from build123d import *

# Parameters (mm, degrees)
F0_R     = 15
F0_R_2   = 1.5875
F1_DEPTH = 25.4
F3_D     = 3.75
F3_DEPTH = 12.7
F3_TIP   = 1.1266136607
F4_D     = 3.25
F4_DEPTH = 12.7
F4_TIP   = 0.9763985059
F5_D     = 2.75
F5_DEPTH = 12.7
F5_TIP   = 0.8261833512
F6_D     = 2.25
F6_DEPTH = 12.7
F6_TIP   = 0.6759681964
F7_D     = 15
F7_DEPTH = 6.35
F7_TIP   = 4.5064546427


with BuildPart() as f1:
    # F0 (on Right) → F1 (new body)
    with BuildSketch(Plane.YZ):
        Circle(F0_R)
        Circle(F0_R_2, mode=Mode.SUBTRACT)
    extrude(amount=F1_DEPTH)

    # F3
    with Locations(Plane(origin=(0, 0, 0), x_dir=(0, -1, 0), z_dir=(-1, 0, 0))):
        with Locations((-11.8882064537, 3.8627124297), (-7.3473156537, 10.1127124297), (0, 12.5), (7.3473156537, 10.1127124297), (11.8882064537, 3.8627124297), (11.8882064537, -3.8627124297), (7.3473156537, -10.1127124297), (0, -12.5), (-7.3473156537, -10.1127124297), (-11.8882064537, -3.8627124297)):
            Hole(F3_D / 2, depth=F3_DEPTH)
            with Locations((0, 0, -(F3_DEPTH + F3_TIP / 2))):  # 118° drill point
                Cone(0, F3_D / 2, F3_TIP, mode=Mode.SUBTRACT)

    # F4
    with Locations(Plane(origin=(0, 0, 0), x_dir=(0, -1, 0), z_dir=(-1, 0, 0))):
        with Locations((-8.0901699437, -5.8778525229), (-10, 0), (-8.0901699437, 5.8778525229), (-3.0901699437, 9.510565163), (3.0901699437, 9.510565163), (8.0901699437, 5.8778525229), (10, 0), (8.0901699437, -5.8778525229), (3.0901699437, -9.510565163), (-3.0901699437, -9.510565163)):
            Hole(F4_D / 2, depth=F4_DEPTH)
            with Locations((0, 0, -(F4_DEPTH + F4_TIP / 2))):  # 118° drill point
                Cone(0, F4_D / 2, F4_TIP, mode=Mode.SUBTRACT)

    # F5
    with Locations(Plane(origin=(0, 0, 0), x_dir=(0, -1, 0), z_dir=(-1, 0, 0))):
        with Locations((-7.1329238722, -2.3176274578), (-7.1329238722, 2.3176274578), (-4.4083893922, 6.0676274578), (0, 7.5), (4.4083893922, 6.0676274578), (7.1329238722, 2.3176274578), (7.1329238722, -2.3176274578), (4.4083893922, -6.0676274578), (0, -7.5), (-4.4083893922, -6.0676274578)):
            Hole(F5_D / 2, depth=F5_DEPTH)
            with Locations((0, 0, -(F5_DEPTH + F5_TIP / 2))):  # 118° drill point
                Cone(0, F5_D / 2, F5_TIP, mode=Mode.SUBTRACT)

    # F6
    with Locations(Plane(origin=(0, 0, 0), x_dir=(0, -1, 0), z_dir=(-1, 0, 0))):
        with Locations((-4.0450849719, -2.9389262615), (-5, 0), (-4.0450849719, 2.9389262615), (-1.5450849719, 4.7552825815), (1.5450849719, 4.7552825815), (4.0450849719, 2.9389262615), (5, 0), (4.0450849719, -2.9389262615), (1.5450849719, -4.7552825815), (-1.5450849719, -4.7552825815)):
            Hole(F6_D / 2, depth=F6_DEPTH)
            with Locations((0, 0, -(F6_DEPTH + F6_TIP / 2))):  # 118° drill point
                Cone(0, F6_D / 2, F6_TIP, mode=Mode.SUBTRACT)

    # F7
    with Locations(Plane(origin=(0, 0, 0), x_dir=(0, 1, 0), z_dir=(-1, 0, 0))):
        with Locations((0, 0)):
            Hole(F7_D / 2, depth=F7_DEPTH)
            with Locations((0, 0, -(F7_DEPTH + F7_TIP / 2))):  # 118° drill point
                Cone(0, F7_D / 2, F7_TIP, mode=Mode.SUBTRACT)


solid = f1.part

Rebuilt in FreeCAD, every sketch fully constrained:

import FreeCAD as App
import Part
import Sketcher

V = App.Vector
Q = App.Units.Quantity

doc = App.newDocument("Part")
body = doc.addObject("PartDesign::Body", "Body")

# Sketch on YZ plane
sketch1 = doc.addObject("Sketcher::SketchObject", "Sketch")
body.addObject(sketch1)
sketch1.AttachmentSupport = (doc.YZ_Plane, [""])
sketch1.MapMode = "FlatFace"
sketch1.addGeometry([
    Part.Circle(V(0, 0, 0), V(0, 0, 1), 15),
    Part.Circle(V(0, 0, 0), V(0, 0, 1), 1.6),
], False)
sketch1.addConstraint([
    Sketcher.Constraint("Coincident", 0, 3, -1, 1),
    Sketcher.Constraint("Coincident", 1, 3, -1, 1),
    Sketcher.Constraint("Diameter", 1, Q("0.125 in")),
    Sketcher.Constraint("Diameter", 0, 30.0),
])
pad1 = doc.addObject("PartDesign::Pad", "Pad")
body.addObject(pad1)
pad1.Profile = sketch1
pad1.Length = Q("1 in")

# Sketch on YZ plane
sketch2 = doc.addObject("Sketcher::SketchObject", "Sketch001")
body.addObject(sketch2)
sketch2.AttachmentSupport = (doc.YZ_Plane, [""])
sketch2.MapMode = "FlatFace"
sketch2.addGeometry([
    Part.Circle(V(11.9, 3.9, 0), V(0, 0, 1), 1.9),  # 0
    Part.Circle(V(7.3, 10.1, 0), V(0, 0, 1), 1.9),  # 1
    Part.Circle(V(0, 12.5, 0), V(0, 0, 1), 1.9),  # 2
    Part.Circle(V(-7.3, 10.1, 0), V(0, 0, 1), 1.9),  # 3
    Part.Circle(V(-11.9, 3.9, 0), V(0, 0, 1), 1.9),  # 4
    Part.Circle(V(-11.9, -3.9, 0), V(0, 0, 1), 1.9),  # 5
    Part.Circle(V(-7.3, -10.1, 0), V(0, 0, 1), 1.9),  # 6
    Part.Circle(V(0, -12.5, 0), V(0, 0, 1), 1.9),  # 7
    Part.Circle(V(7.3, -10.1, 0), V(0, 0, 1), 1.9),  # 8
    Part.Circle(V(11.9, -3.9, 0), V(0, 0, 1), 1.9),  # 9
], False)
sketch2.addConstraint([
    Sketcher.Constraint("Equal", 0, 1),
    Sketcher.Constraint("Equal", 1, 2),
    Sketcher.Constraint("Equal", 2, 3),
    Sketcher.Constraint("Equal", 3, 4),
    Sketcher.Constraint("Equal", 4, 5),
    Sketcher.Constraint("Equal", 5, 6),
    Sketcher.Constraint("Equal", 6, 7),
    Sketcher.Constraint("Equal", 7, 8),
    Sketcher.Constraint("Equal", 8, 9),
    Sketcher.Constraint("Symmetric", 0, 3, 5, 3, -1, 1),
    Sketcher.Constraint("Symmetric", 1, 3, 6, 3, -1, 1),
    Sketcher.Constraint("Symmetric", 2, 3, 7, 3, -1, 1),
    Sketcher.Constraint("Symmetric", 3, 3, 8, 3, -1, 1),
    Sketcher.Constraint("Symmetric", 4, 3, 9, 3, -1, 1),
    Sketcher.Constraint("Symmetric", 1, 3, 3, 3, -2),
    Sketcher.Constraint("Symmetric", 0, 3, 4, 3, -2),
    Sketcher.Constraint("PointOnObject", 2, 3, -2),
    Sketcher.Constraint("Diameter", 0, 3.75),
    Sketcher.Constraint("DistanceY", -1, 1, 2, 3, 12.5),
    Sketcher.Constraint("DistanceY", 0, 3, 1, 3, 6.25),
    Sketcher.Constraint("DistanceX", 1, 3, 0, 3, 4.540891),
    Sketcher.Constraint("DistanceX", 3, 3, 1, 3, 14.694631),
    Sketcher.Constraint("DistanceY", -1, 1, 0, 3, 3.862712),
])
doc.recompute()
hole = doc.addObject("PartDesign::Hole", "Hole")
body.addObject(hole)
hole.Profile = sketch2
hole.ThreadType = "None"
hole.Diameter = 3.75
hole.DepthType = "Dimension"
hole.Depth = Q("0.5 in")
hole.DrillPoint = "Angled"
hole.DrillPointAngle = 118
hole.Reversed = True

# Sketch on YZ plane
sketch3 = doc.addObject("Sketcher::SketchObject", "Sketch002")
body.addObject(sketch3)
sketch3.AttachmentSupport = (doc.YZ_Plane, [""])
sketch3.MapMode = "FlatFace"
sketch3.addGeometry([
    Part.Circle(V(8.1, -5.9, 0), V(0, 0, 1), 1.6),  # 0
    Part.Circle(V(10, 0, 0), V(0, 0, 1), 1.6),  # 1
    Part.Circle(V(8.1, 5.9, 0), V(0, 0, 1), 1.6),  # 2
    Part.Circle(V(3.1, 9.5, 0), V(0, 0, 1), 1.6),  # 3
    Part.Circle(V(-3.1, 9.5, 0), V(0, 0, 1), 1.6),  # 4
    Part.Circle(V(-8.1, 5.9, 0), V(0, 0, 1), 1.6),  # 5
    Part.Circle(V(-10, 0, 0), V(0, 0, 1), 1.6),  # 6
    Part.Circle(V(-8.1, -5.9, 0), V(0, 0, 1), 1.6),  # 7
    Part.Circle(V(-3.1, -9.5, 0), V(0, 0, 1), 1.6),  # 8
    Part.Circle(V(3.1, -9.5, 0), V(0, 0, 1), 1.6),  # 9
], False)
sketch3.addConstraint([
    Sketcher.Constraint("Equal", 0, 1),
    Sketcher.Constraint("Equal", 1, 2),
    Sketcher.Constraint("Equal", 2, 3),
    Sketcher.Constraint("Equal", 3, 4),
    Sketcher.Constraint("Equal", 4, 5),
    Sketcher.Constraint("Equal", 5, 6),
    Sketcher.Constraint("Equal", 6, 7),
    Sketcher.Constraint("Equal", 7, 8),
    Sketcher.Constraint("Equal", 8, 9),
    Sketcher.Constraint("Symmetric", 0, 3, 5, 3, -1, 1),
    Sketcher.Constraint("Symmetric", 1, 3, 6, 3, -1, 1),
    Sketcher.Constraint("Symmetric", 2, 3, 7, 3, -1, 1),
    Sketcher.Constraint("Symmetric", 3, 3, 8, 3, -1, 1),
    Sketcher.Constraint("Symmetric", 4, 3, 9, 3, -1, 1),
    Sketcher.Constraint("Symmetric", 3, 3, 4, 3, -2),
    Sketcher.Constraint("Symmetric", 2, 3, 5, 3, -2),
    Sketcher.Constraint("PointOnObject", 1, 3, -1),
    Sketcher.Constraint("Diameter", 0, 3.25),
    Sketcher.Constraint("DistanceX", -1, 1, 1, 3, 10.0),
    Sketcher.Constraint("DistanceX", 3, 3, 2, 3, 5.0),
    Sketcher.Constraint("DistanceX", -1, 1, 0, 3, 8.09017),
    Sketcher.Constraint("DistanceY", 0, 3, -1, 1, 5.877853),
    Sketcher.Constraint("DistanceY", -1, 1, 3, 3, 9.510565),
])
doc.recompute()
hole2 = doc.addObject("PartDesign::Hole", "Hole001")
body.addObject(hole2)
hole2.Profile = sketch3
hole2.ThreadType = "None"
hole2.Diameter = 3.25
hole2.DepthType = "Dimension"
hole2.Depth = Q("0.5 in")
hole2.DrillPoint = "Angled"
hole2.DrillPointAngle = 118
hole2.Reversed = True

# Sketch on YZ plane
sketch4 = doc.addObject("Sketcher::SketchObject", "Sketch003")
body.addObject(sketch4)
sketch4.AttachmentSupport = (doc.YZ_Plane, [""])
sketch4.MapMode = "FlatFace"
sketch4.addGeometry([
    Part.Circle(V(7.1, -2.3, 0), V(0, 0, 1), 1.4),  # 0
    Part.Circle(V(7.1, 2.3, 0), V(0, 0, 1), 1.4),  # 1
    Part.Circle(V(4.4, 6.1, 0), V(0, 0, 1), 1.4),  # 2
    Part.Circle(V(0, 7.5, 0), V(0, 0, 1), 1.4),  # 3
    Part.Circle(V(-4.4, 6.1, 0), V(0, 0, 1), 1.4),  # 4
    Part.Circle(V(-7.1, 2.3, 0), V(0, 0, 1), 1.4),  # 5
    Part.Circle(V(-7.1, -2.3, 0), V(0, 0, 1), 1.4),  # 6
    Part.Circle(V(-4.4, -6.1, 0), V(0, 0, 1), 1.4),  # 7
    Part.Circle(V(0, -7.5, 0), V(0, 0, 1), 1.4),  # 8
    Part.Circle(V(4.4, -6.1, 0), V(0, 0, 1), 1.4),  # 9
], False)
sketch4.addConstraint([
    Sketcher.Constraint("Equal", 0, 1),
    Sketcher.Constraint("Equal", 1, 2),
    Sketcher.Constraint("Equal", 2, 3),
    Sketcher.Constraint("Equal", 3, 4),
    Sketcher.Constraint("Equal", 4, 5),
    Sketcher.Constraint("Equal", 5, 6),
    Sketcher.Constraint("Equal", 6, 7),
    Sketcher.Constraint("Equal", 7, 8),
    Sketcher.Constraint("Equal", 8, 9),
    Sketcher.Constraint("Symmetric", 0, 3, 5, 3, -1, 1),
    Sketcher.Constraint("Symmetric", 1, 3, 6, 3, -1, 1),
    Sketcher.Constraint("Symmetric", 2, 3, 7, 3, -1, 1),
    Sketcher.Constraint("Symmetric", 3, 3, 8, 3, -1, 1),
    Sketcher.Constraint("Symmetric", 4, 3, 9, 3, -1, 1),
    Sketcher.Constraint("Symmetric", 2, 3, 4, 3, -2),
    Sketcher.Constraint("Symmetric", 1, 3, 5, 3, -2),
    Sketcher.Constraint("PointOnObject", 3, 3, -2),
    Sketcher.Constraint("Diameter", 0, 2.75),
    Sketcher.Constraint("DistanceY", -1, 1, 3, 3, 7.5),
    Sketcher.Constraint("DistanceY", 1, 3, 2, 3, 3.75),
    Sketcher.Constraint("DistanceX", -1, 1, 2, 3, 4.408389),
    Sketcher.Constraint("DistanceX", -1, 1, 0, 3, 7.132924),
    Sketcher.Constraint("DistanceY", 0, 3, -1, 1, 2.317627),
])
doc.recompute()
hole3 = doc.addObject("PartDesign::Hole", "Hole002")
body.addObject(hole3)
hole3.Profile = sketch4
hole3.ThreadType = "None"
hole3.Diameter = 2.75
hole3.DepthType = "Dimension"
hole3.Depth = Q("0.5 in")
hole3.DrillPoint = "Angled"
hole3.DrillPointAngle = 118
hole3.Reversed = True

# Sketch on YZ plane
sketch5 = doc.addObject("Sketcher::SketchObject", "Sketch004")
body.addObject(sketch5)
sketch5.AttachmentSupport = (doc.YZ_Plane, [""])
sketch5.MapMode = "FlatFace"
sketch5.addGeometry([
    Part.Circle(V(4, -2.9, 0), V(0, 0, 1), 1.1),  # 0
    Part.Circle(V(5, 0, 0), V(0, 0, 1), 1.1),  # 1
    Part.Circle(V(4, 2.9, 0), V(0, 0, 1), 1.1),  # 2
    Part.Circle(V(1.5, 4.8, 0), V(0, 0, 1), 1.1),  # 3
    Part.Circle(V(-1.5, 4.8, 0), V(0, 0, 1), 1.1),  # 4
    Part.Circle(V(-4, 2.9, 0), V(0, 0, 1), 1.1),  # 5
    Part.Circle(V(-5, 0, 0), V(0, 0, 1), 1.1),  # 6
    Part.Circle(V(-4, -2.9, 0), V(0, 0, 1), 1.1),  # 7
    Part.Circle(V(-1.5, -4.8, 0), V(0, 0, 1), 1.1),  # 8
    Part.Circle(V(1.5, -4.8, 0), V(0, 0, 1), 1.1),  # 9
], False)
sketch5.addConstraint([
    Sketcher.Constraint("Equal", 0, 1),
    Sketcher.Constraint("Equal", 1, 2),
    Sketcher.Constraint("Equal", 2, 3),
    Sketcher.Constraint("Equal", 3, 4),
    Sketcher.Constraint("Equal", 4, 5),
    Sketcher.Constraint("Equal", 5, 6),
    Sketcher.Constraint("Equal", 6, 7),
    Sketcher.Constraint("Equal", 7, 8),
    Sketcher.Constraint("Equal", 8, 9),
    Sketcher.Constraint("Symmetric", 0, 3, 5, 3, -1, 1),
    Sketcher.Constraint("Symmetric", 1, 3, 6, 3, -1, 1),
    Sketcher.Constraint("Symmetric", 2, 3, 7, 3, -1, 1),
    Sketcher.Constraint("Symmetric", 3, 3, 8, 3, -1, 1),
    Sketcher.Constraint("Symmetric", 4, 3, 9, 3, -1, 1),
    Sketcher.Constraint("Symmetric", 3, 3, 4, 3, -2),
    Sketcher.Constraint("Symmetric", 2, 3, 5, 3, -2),
    Sketcher.Constraint("PointOnObject", 1, 3, -1),
    Sketcher.Constraint("Diameter", 0, 2.25),
    Sketcher.Constraint("DistanceX", -1, 1, 1, 3, 5.0),
    Sketcher.Constraint("DistanceX", 3, 3, 2, 3, 2.5),
    Sketcher.Constraint("DistanceY", 0, 3, 3, 3, 7.694209),
    Sketcher.Constraint("DistanceX", 4, 3, 3, 3, 3.09017),
    Sketcher.Constraint("DistanceY", 0, 3, -1, 1, 2.938926),
])
doc.recompute()
hole4 = doc.addObject("PartDesign::Hole", "Hole003")
body.addObject(hole4)
hole4.Profile = sketch5
hole4.ThreadType = "None"
hole4.Diameter = 2.25
hole4.DepthType = "Dimension"
hole4.Depth = Q("0.5 in")
hole4.DrillPoint = "Angled"
hole4.DrillPointAngle = 118
hole4.Reversed = True

# Sketch on YZ plane
sketch6 = doc.addObject("Sketcher::SketchObject", "Sketch005")
body.addObject(sketch6)
sketch6.AttachmentSupport = (doc.YZ_Plane, [""])
sketch6.MapMode = "FlatFace"
sketch6.addGeometry(Part.Circle(V(0, 0, 0), V(0, 0, 1), 8), False)
sketch6.addConstraint([
    Sketcher.Constraint("Coincident", 0, 3, -1, 1),
    Sketcher.Constraint("Diameter", 0, 15.0),
])
doc.recompute()
hole5 = doc.addObject("PartDesign::Hole", "Hole004")
body.addObject(hole5)
hole5.Profile = sketch6
hole5.ThreadType = "None"
hole5.Diameter = 15
hole5.DepthType = "Dimension"
hole5.Depth = Q("0.25 in")
hole5.DrillPoint = "Angled"
hole5.DrillPointAngle = 118
hole5.Reversed = True

doc.recompute()
